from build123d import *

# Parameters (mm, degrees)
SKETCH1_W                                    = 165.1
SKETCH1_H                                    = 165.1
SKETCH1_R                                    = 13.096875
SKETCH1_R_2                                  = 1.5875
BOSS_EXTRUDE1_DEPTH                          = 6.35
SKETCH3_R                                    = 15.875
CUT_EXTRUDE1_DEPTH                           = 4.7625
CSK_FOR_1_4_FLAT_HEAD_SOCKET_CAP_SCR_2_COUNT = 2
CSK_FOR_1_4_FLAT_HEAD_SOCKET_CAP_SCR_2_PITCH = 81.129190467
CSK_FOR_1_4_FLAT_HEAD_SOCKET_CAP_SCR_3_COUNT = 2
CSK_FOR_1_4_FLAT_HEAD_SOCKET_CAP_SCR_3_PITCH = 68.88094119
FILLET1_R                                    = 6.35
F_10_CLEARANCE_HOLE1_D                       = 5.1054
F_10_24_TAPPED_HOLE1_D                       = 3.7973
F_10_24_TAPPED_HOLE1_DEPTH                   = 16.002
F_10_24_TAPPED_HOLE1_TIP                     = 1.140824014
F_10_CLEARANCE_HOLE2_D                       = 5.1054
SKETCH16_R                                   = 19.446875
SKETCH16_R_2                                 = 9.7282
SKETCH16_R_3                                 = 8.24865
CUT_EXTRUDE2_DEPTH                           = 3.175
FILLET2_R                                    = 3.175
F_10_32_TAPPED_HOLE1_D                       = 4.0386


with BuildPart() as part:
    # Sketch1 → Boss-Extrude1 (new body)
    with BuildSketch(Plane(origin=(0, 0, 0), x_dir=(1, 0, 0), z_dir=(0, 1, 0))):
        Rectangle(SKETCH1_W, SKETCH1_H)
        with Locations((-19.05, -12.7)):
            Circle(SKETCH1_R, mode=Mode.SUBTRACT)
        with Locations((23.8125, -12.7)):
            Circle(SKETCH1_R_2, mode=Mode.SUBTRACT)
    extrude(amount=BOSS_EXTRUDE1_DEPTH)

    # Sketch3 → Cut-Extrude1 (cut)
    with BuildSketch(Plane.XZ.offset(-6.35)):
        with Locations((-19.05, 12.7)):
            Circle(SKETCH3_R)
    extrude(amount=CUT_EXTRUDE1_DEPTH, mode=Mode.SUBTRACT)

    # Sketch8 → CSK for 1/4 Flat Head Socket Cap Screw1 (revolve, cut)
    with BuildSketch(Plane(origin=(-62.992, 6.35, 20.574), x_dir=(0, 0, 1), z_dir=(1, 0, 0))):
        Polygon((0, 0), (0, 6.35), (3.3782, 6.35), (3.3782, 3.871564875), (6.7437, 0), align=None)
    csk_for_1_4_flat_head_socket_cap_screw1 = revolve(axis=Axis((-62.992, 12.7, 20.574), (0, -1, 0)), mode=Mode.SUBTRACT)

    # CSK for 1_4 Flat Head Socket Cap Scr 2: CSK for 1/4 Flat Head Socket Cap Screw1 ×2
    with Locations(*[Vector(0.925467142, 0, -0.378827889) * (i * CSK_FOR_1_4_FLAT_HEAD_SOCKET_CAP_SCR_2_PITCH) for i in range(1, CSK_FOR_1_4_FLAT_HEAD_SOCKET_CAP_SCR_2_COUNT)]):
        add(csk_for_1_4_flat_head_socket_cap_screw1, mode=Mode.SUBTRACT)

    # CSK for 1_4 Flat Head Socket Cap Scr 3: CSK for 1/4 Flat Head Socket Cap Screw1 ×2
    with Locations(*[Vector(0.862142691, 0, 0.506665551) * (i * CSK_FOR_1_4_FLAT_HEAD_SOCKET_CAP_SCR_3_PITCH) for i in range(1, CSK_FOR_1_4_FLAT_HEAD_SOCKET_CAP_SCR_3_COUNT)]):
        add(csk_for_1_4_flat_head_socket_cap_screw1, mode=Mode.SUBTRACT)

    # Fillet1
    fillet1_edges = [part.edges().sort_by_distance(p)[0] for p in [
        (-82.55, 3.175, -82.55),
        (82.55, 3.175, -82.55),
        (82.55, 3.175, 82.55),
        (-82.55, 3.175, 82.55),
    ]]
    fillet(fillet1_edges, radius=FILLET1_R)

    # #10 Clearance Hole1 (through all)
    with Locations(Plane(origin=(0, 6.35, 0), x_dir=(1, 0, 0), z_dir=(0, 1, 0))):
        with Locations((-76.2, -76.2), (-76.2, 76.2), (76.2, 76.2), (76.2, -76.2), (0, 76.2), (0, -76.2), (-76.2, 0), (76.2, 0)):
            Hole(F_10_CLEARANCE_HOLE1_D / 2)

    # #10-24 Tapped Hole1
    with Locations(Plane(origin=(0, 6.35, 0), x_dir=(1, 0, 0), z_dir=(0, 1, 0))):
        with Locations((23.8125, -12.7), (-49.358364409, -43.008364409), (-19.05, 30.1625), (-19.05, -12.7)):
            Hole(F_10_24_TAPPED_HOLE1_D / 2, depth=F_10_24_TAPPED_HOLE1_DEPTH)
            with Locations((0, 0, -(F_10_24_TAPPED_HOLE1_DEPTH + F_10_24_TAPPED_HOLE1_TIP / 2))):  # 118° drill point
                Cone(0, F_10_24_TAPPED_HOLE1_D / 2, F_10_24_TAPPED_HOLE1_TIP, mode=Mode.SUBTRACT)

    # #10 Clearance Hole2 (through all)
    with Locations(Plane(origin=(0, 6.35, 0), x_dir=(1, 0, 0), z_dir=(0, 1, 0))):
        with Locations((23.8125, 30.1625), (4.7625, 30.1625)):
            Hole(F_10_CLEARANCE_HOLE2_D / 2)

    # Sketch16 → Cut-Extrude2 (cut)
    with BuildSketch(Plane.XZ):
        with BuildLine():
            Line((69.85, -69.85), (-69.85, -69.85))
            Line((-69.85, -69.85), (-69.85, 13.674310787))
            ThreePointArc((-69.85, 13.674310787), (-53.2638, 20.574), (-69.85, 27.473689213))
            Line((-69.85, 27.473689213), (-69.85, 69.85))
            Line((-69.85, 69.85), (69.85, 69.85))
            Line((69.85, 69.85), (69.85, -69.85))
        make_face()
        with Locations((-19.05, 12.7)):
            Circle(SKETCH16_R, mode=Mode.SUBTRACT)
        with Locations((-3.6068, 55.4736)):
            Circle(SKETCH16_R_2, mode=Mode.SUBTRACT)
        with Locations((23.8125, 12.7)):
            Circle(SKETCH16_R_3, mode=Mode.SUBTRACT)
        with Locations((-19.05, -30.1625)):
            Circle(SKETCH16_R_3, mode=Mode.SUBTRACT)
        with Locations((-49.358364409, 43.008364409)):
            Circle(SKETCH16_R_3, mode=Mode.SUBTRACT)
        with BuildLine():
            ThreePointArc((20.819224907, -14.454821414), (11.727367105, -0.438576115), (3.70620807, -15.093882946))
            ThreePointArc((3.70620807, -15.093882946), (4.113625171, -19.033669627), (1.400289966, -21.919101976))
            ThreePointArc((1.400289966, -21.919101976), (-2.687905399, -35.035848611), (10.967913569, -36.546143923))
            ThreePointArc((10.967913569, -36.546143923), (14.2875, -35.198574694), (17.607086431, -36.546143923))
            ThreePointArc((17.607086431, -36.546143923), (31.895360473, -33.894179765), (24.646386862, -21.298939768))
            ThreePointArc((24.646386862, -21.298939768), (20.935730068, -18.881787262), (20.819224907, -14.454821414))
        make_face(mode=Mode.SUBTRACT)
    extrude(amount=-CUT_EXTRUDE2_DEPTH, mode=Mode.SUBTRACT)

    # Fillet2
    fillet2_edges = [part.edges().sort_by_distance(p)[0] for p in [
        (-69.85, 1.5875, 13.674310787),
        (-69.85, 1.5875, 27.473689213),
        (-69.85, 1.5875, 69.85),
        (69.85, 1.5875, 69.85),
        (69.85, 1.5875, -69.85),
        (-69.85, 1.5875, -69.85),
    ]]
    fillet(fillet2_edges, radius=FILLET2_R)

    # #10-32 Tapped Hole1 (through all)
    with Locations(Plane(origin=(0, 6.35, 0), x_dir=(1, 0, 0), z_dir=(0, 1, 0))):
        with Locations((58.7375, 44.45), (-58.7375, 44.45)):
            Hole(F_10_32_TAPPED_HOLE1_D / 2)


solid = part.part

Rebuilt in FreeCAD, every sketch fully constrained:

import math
import FreeCAD as App
import Part
import Sketcher
from FreeCAD import Vector
Q = App.Units.Quantity


def edges_at(feature, points):
    """Names of the edges that pass closest to the given points."""
    edges = feature.Shape.Edges
    near = lambda p: min(range(len(edges)), key=lambda i: edges[i].distToShape(Part.Vertex(*p))[0])
    return sorted({f"Edge{near(p) + 1}" for p in points})

doc = App.newDocument("Part")
params = doc.addObject("Spreadsheet::Sheet", "Params")
for row, (alias, value) in enumerate([
    ("sketch1_diameter", "1.03125 in"),
    ("sketch1_diameter2", "0.125 in"),
    ("sketch1_width", "6.5 in"),
    ("pad1_length", "0.25 in"),
    ("sketch2_diameter", "1.25 in"),
    ("pocket1_length", "0.1875 in"),
    ("sketch3_width", "0.25 in"),
    ("sketch3_height", "0.133 in"),
    ("groove_angle", "360 deg"),
    ("linearpattern_pitch", "81.12919 mm"),
    ("linearpattern2_pitch", "68.880941 mm"),
    ("fillet_radius", "0.25 in"),
    ("sketch4_diameter", "0.201 in"),
    ("hole_diameter", "0.201 in"),
    ("hole2_diameter", "0.1495 in"),
    ("hole2_depth", "0.63 in"),
    ("sketch6_diameter", "0.201 in"),
    ("hole3_diameter", "0.201 in"),
    ("sketch7_diameter", "1.53125 in"),
    ("sketch7_diameter2", "0.766 in"),
    ("sketch7_width", "5.5 in"),
    ("sketch7_radius", "0.1875 in"),
    ("pocket2_length", "0.125 in"),
    ("fillet2_radius", "0.125 in"),
    ("sketch8_diameter", "0.159 in"),
    ("hole4_diameter", "0.159 in"),
], start=1):
    params.set(f"A{row}", alias)
    params.set(f"B{row}", "=" + value)
    params.setAlias(f"B{row}", alias)

body = doc.addObject("PartDesign::Body", "Body")

sketch1 = body.newObject("Sketcher::SketchObject", "Sketch")
sketch1.AttachmentSupport = (doc.getObject("XZ_Plane"), [""])
sketch1.MapMode = "FlatFace"
sketch1.addGeometry([
    Part.LineSegment(Vector(-82.5, -82.5, 0), Vector(-82.5, 82.5, 0)),
    Part.LineSegment(Vector(-82.5, 82.5, 0), Vector(82.5, 82.5, 0)),
    Part.LineSegment(Vector(82.5, 82.5, 0), Vector(82.5, -82.5, 0)),
    Part.LineSegment(Vector(82.5, -82.5, 0), Vector(-82.5, -82.5, 0)),
    Part.Circle(Vector(-19.1, 12.7, 0), Vector(0, 0, 1), 13.1),
    Part.Circle(Vector(23.8, 12.7, 0), Vector(0, 0, 1), 1.6),
], False)
sketch1.addConstraint([
    Sketcher.Constraint("Coincident", 0, 2, 1, 1),
    Sketcher.Constraint("Coincident", 1, 2, 2, 1),
    Sketcher.Constraint("Coincident", 2, 2, 3, 1),
    Sketcher.Constraint("Coincident", 3, 2, 0, 1),
    Sketcher.Constraint("Vertical", 0),
    Sketcher.Constraint("Horizontal", 1),
    Sketcher.Constraint("Vertical", 2),
    Sketcher.Constraint("Horizontal", 3),
    Sketcher.Constraint("Symmetric", 0, 2, 2, 2, -1, 1),
    Sketcher.Constraint("Horizontal", 4, 3, 5, 3),
    Sketcher.Constraint("Equal", 3, 0),
    Sketcher.Constraint("Diameter", 4, Q("1.03125 in")),
    Sketcher.Constraint("Diameter", 5, Q("0.125 in")),
    Sketcher.Constraint("DistanceX", 1, 1, 1, 2, Q("6.5 in")),
    Sketcher.Constraint("DistanceX", 4, 3, 1, 2, Q("4 in")),
    Sketcher.Constraint("DistanceY", -1, 1, 4, 3, Q("0.5 in")),
    Sketcher.Constraint("DistanceX", -1, 1, 5, 3, Q("0.9375 in")),
])
sketch1.setExpression("Constraints[11]", "Params.sketch1_diameter")
sketch1.setExpression("Constraints[12]", "Params.sketch1_diameter2")
sketch1.setExpression("Constraints[13]", "Params.sketch1_width")
pad1 = body.newObject("PartDesign::Pad", "Pad")
pad1.Profile = sketch1
pad1.setExpression("Length", "Params.pad1_length")
pad1.Reversed = True

sketch2 = body.newObject("Sketcher::SketchObject", "Sketch001")
sketch2.AttachmentSupport = (doc.getObject("XZ_Plane"), [""])
sketch2.MapMode = "FlatFace"
sketch2.AttachmentOffset = App.Placement(Vector(0, 0, -0.25 * 25.4), App.Rotation())
sketch2.addGeometry(Part.Circle(Vector(-19, 13, 0), Vector(0, 0, 1), 16), False)
sketch2.addConstraint([
    Sketcher.Constraint("Diameter", 0, Q("1.25 in")),
    Sketcher.Constraint("DistanceY", -1, 1, 0, 3, Q("0.5 in")),
    Sketcher.Constraint("DistanceX", 0, 3, -1, 1, Q("0.75 in")),
])
sketch2.setExpression("Constraints[0]", "Params.sketch2_diameter")
pocket1 = body.newObject("PartDesign::Pocket", "Pocket")
pocket1.Profile = sketch2
pocket1.setExpression("Length", "Params.pocket1_length")
pocket1.Reversed = True

sketch3 = body.newObject("Sketcher::SketchObject", "Sketch002")
sketch3.AttachmentSupport = (doc.getObject("YZ_Plane"), [""])
sketch3.MapMode = "FlatFace"
sketch3.AttachmentOffset = App.Placement(Vector(0, 0, -2.48 * 25.4), App.Rotation())
sketch3.addGeometry([
    Part.LineSegment(Vector(0, 20.6, 0), Vector(6.3, 20.6, 0)),
    Part.LineSegment(Vector(6.3, 20.6, 0), Vector(6.3, 27.3, 0)),
    Part.LineSegment(Vector(6.3, 27.3, 0), Vector(2.5, 24, 0)),
    Part.LineSegment(Vector(2.5, 24, 0), Vector(0, 24, 0)),
    Part.LineSegment(Vector(0, 24, 0), Vector(0, 20.6, 0)),
], False)
sketch3.addGeometry(Part.LineSegment(Vector(6.3, 20.6, 0), Vector(0, 20.6, 0)), True)
sketch3.addConstraint([
    Sketcher.Constraint("Coincident", 0, 2, 1, 1),
    Sketcher.Constraint("Coincident", 1, 2, 2, 1),
    Sketcher.Constraint("Coincident", 2, 2, 3, 1),
    Sketcher.Constraint("Coincident", 3, 2, 4, 1),
    Sketcher.Constraint("Coincident", 4, 2, 0, 1),
    Sketcher.Constraint("Horizontal", 0),
    Sketcher.Constraint("Vertical", 1),
    Sketcher.Constraint("Horizontal", 3),
    Sketcher.Constraint("Vertical", 4),
    Sketcher.Constraint("Horizontal", 5),
    Sketcher.Constraint("Coincident", 5, 1, 0, 2),
    Sketcher.Constraint("PointOnObject", 3, 2, -2),
    Sketcher.Constraint("PointOnObject", 5, 2, -2),
    Sketcher.Constraint("Angle", 2, Q("-139 deg")),
    Sketcher.Constraint("DistanceX", 0, 1, 0, 2, Q("0.25 in")),
    Sketcher.Constraint("DistanceY", 4, 2, 4, 1, Q("0.133 in")),
    Sketcher.Constraint("DistanceY", -1, 1, 0, 2, Q("0.81 in")),
    Sketcher.Constraint("DistanceY", 1, 1, 1, 2, Q("0.2655 in")),
])
sketch3.setExpression("Constraints[14]", "Params.sketch3_width")
sketch3.setExpression("Constraints[15]", "Params.sketch3_height")
groove = body.newObject("PartDesign::Groove", "Groove")
groove.Profile = sketch3
groove.ReferenceAxis = (sketch3, ["Axis0"])
groove.setExpression("Angle", "Params.groove_angle")
doc.recompute()

datumline = body.newObject("PartDesign::Line", "DatumLine")
datumline.Placement = App.Placement(Vector(0, 0, 0), App.Rotation(Vector(0, 0, 1), Vector(0.925467142, 0, -0.378827889)))
linearpattern = body.newObject("PartDesign::LinearPattern", "LinearPattern")
linearpattern.Originals = [groove]
linearpattern.Direction = (datumline, [""])
linearpattern.Mode = "offset"
linearpattern.setExpression("Offset", "Params.linearpattern_pitch")
linearpattern.Occurrences = 2
body.Tip = linearpattern
doc.recompute()

datumline2 = body.newObject("PartDesign::Line", "DatumLine001")
datumline2.Placement = App.Placement(Vector(0, 0, 0), App.Rotation(Vector(0, 0, 1), Vector(0.862142691, 0, 0.506665551)))
linearpattern2 = body.newObject("PartDesign::LinearPattern", "LinearPattern001")
linearpattern2.Originals = [groove]
linearpattern2.Direction = (datumline2, [""])
linearpattern2.Mode = "offset"
linearpattern2.setExpression("Offset", "Params.linearpattern2_pitch")
linearpattern2.Occurrences = 2
body.Tip = linearpattern2
doc.recompute()

fillet = body.newObject("PartDesign::Fillet", "Fillet")
fillet.Base = (linearpattern2, edges_at(linearpattern2, [
    (-82.55, 3.175, -82.55),
    (82.55, 3.175, -82.55),
    (82.55, 3.175, 82.55),
    (-82.55, 3.175, 82.55),
]))
fillet.setExpression("Radius", "Params.fillet_radius")

sketch4 = body.newObject("Sketcher::SketchObject", "Sketch003")
sketch4.AttachmentSupport = (doc.getObject("XZ_Plane"), [""])
sketch4.MapMode = "FlatFace"
sketch4.AttachmentOffset = App.Placement(Vector(0, 0, -0.25 * 25.4), App.Rotation())
sketch4.addGeometry([
    Part.Circle(Vector(-76.2, 76.2, 0), Vector(0, 0, 1), 2.6),
    Part.Circle(Vector(-76.2, -76.2, 0), Vector(0, 0, 1), 2.6),
    Part.Circle(Vector(76.2, -76.2, 0), Vector(0, 0, 1), 2.6),
    Part.Circle(Vector(76.2, 76.2, 0), Vector(0, 0, 1), 2.6),
    Part.Circle(Vector(0, -76.2, 0), Vector(0, 0, 1), 2.6),
    Part.Circle(Vector(0, 76.2, 0), Vector(0, 0, 1), 2.6),
    Part.Circle(Vector(-76.2, 0, 0), Vector(0, 0, 1), 2.6),
    Part.Circle(Vector(76.2, 0, 0), Vector(0, 0, 1), 2.6),
], False)
sketch4.addConstraint([
    Sketcher.Constraint("Equal", 0, 1),
    Sketcher.Constraint("Equal", 1, 2),
    Sketcher.Constraint("Equal", 2, 3),
    Sketcher.Constraint("Equal", 3, 4),
    Sketcher.Constraint("Equal", 4, 5),
    Sketcher.Constraint("Equal", 5, 6),
    Sketcher.Constraint("Equal", 6, 7),
    Sketcher.Constraint("Symmetric", 0, 3, 2, 3, -1, 1),
    Sketcher.Constraint("Symmetric", 1, 3, 3, 3, -1, 1),
    Sketcher.Constraint("Symmetric", 4, 3, 5, 3, -1, 1),
    Sketcher.Constraint("Symmetric", 6, 3, 7, 3, -1, 1),
    Sketcher.Constraint("Symmetric", 1, 3, 2, 3, -2),
    Sketcher.Constraint("PointOnObject", 4, 3, -2),
    Sketcher.Constraint("PointOnObject", 6, 3, -1),
    Sketcher.Constraint("Horizontal", 2, 3, 4, 3),
    Sketcher.Constraint("Vertical", 1, 3, 6, 3),
    Sketcher.Constraint("Diameter", 0, Q("0.201 in")),
    Sketcher.Constraint("DistanceX", 0, 3, -1, 1, Q("3 in")),
    Sketcher.Constraint("DistanceY", -1, 1, 0, 3, Q("3 in")),
])
sketch4.setExpression("Constraints[16]", "Params.sketch4_diameter")
doc.recompute()
hole = body.newObject("PartDesign::Hole", "Hole")
hole.Profile = sketch4
hole.ThreadType = "None"
hole.setExpression("Diameter", "Params.hole_diameter")
hole.DepthType = "ThroughAll"
hole.Reversed = True

sketch5 = body.newObject("Sketcher::SketchObject", "Sketch004")
sketch5.AttachmentSupport = (doc.getObject("XZ_Plane"), [""])
sketch5.MapMode = "FlatFace"
sketch5.AttachmentOffset = App.Placement(Vector(0, 0, -0.25 * 25.4), App.Rotation())
sketch5.addGeometry([
    Part.Circle(Vector(23.8, 12.7, 0), Vector(0, 0, 1), 1.9),
    Part.Circle(Vector(-49.4, 43, 0), Vector(0, 0, 1), 1.9),
    Part.Circle(Vector(-19.1, -30.2, 0), Vector(0, 0, 1), 1.9),
    Part.Circle(Vector(-19.1, 12.7, 0), Vector(0, 0, 1), 1.9),
], False)
sketch5.addConstraint([
    Sketcher.Constraint("Equal", 0, 1),
    Sketcher.Constraint("Equal", 1, 2),
    Sketcher.Constraint("Equal", 2, 3),
    Sketcher.Constraint("Horizontal", 0, 3, 3, 3),
    Sketcher.Constraint("Vertical", 2, 3, 3, 3),
    Sketcher.Constraint("Diameter", 0, Q("0.1495 in")),
    Sketcher.Constraint("DistanceY", -1, 1, 0, 3, Q("0.5 in")),
    Sketcher.Constraint("DistanceX", 2, 3, -1, 1, Q("0.75 in")),
    Sketcher.Constraint("DistanceX", -1, 1, 0, 3, Q("0.9375 in")),
    Sketcher.Constraint("DistanceY", 2, 3, -1, 1, Q("1.1875 in")),
    Sketcher.Constraint("DistanceX", 1, 3, -1, 1, Q("49.358364 mm")),
    Sketcher.Constraint("DistanceY", -1, 1, 1, 3, Q("43.008364 mm")),
])
doc.recompute()
hole2 = body.newObject("PartDesign::Hole", "Hole001")
hole2.Profile = sketch5
hole2.ThreadType = "None"
hole2.setExpression("Diameter", "Params.hole2_diameter")
hole2.DepthType = "Dimension"
hole2.setExpression("Depth", "Params.hole2_depth")
hole2.DrillPoint = "Angled"
hole2.DrillPointAngle = 118
hole2.Reversed = True

sketch6 = body.newObject("Sketcher::SketchObject", "Sketch005")
sketch6.AttachmentSupport = (doc.getObject("XZ_Plane"), [""])
sketch6.MapMode = "FlatFace"
sketch6.AttachmentOffset = App.Placement(Vector(0, 0, -0.25 * 25.4), App.Rotation())
sketch6.addGeometry([
    Part.Circle(Vector(23.8, -30.2, 0), Vector(0, 0, 1), 2.6),
    Part.Circle(Vector(4.8, -30.2, 0), Vector(0, 0, 1), 2.6),
], False)
sketch6.addConstraint([
    Sketcher.Constraint("Equal", 0, 1),
    Sketcher.Constraint("Horizontal", 0, 3, 1, 3),
    Sketcher.Constraint("Diameter", 0, Q("0.201 in")),
    Sketcher.Constraint("DistanceX", 1, 3, 0, 3, Q("0.75 in")),
    Sketcher.Constraint("DistanceX", -1, 1, 0, 3, Q("0.9375 in")),
    Sketcher.Constraint("DistanceY", 0, 3, -1, 1, Q("1.1875 in")),
])
sketch6.setExpression("Constraints[2]", "Params.sketch6_diameter")
doc.recompute()
hole3 = body.newObject("PartDesign::Hole", "Hole002")
hole3.Profile = sketch6
hole3.ThreadType = "None"
hole3.setExpression("Diameter", "Params.hole3_diameter")
hole3.DepthType = "ThroughAll"
hole3.Reversed = True

sketch7 = body.newObject("Sketcher::SketchObject", "Sketch006")
sketch7.AttachmentSupport = (doc.getObject("XZ_Plane"), [""])
sketch7.MapMode = "FlatFace"
sketch7.addGeometry([
    Part.LineSegment(Vector(-69.8, -69.8, 0), Vector(69.8, -69.8, 0)),
    Part.LineSegment(Vector(69.8, -69.8, 0), Vector(69.8, 69.8, 0)),
    Part.LineSegment(Vector(69.8, 69.8, 0), Vector(-69.8, 69.8, 0)),
    Part.LineSegment(Vector(-69.8, 69.8, 0), Vector(-69.8, 27.5, 0)),
    Part.ArcOfCircle(Part.Circle(Vector(-63, 20.6, 0), Vector(0, 0, 1), 9.7), math.radians(-135), math.radians(135)),
    Part.LineSegment(Vector(-69.8, 13.7, 0), Vector(-69.8, -69.8, 0)),
    Part.ArcOfCircle(Part.Circle(Vector(25.1, -16.6, 0), Vector(0, 0, 1), 4.8), math.radians(154), math.radians(265)),
    Part.ArcOfCircle(Part.Circle(Vector(23.8, -30.2, 0), Vector(0, 0, 1), 8.9), math.radians(-134), math.radians(85)),
    Part.ArcOfCircle(Part.Circle(Vector(14.3, -40, 0), Vector(0, 0, 1), 4.8), math.radians(46), math.radians(134)),
    Part.ArcOfCircle(Part.Circle(Vector(4.8, -30.2, 0), Vector(0, 0, 1), 8.9), math.radians(112), math.radians(314)),
    Part.ArcOfCircle(Part.Circle(Vector(-0.4, -17.5, 0), Vector(0, 0, 1), 4.8), math.radians(-68), math.radians(30)),
    Part.ArcOfCircle(Part.Circle(Vector(12.1, -10.2, 0), Vector(0, 0, 1), 9.7), math.radians(-26), math.radians(210)),
    Part.Circle(Vector(23.8, 12.7, 0), Vector(0, 0, 1), 8.2),
    Part.Circle(Vector(-19.1, -30.2, 0), Vector(0, 0, 1), 8.2),
    Part.Circle(Vector(-19.1, 12.7, 0), Vector(0, 0, 1), 19.4),
    Part.Circle(Vector(-3.6, 55.5, 0), Vector(0, 0, 1), 9.7),
    Part.Circle(Vector(-49.4, 43, 0), Vector(0, 0, 1), 8.2),
], False)
sketch7.addConstraint([
    Sketcher.Constraint("Coincident", 0, 2, 1, 1),
    Sketcher.Constraint("Coincident", 1, 2, 2, 1),
    Sketcher.Constraint("Coincident", 2, 2, 3, 1),
    Sketcher.Constraint("Coincident", 3, 2, 4, 2),
    Sketcher.Constraint("Coincident", 4, 1, 5, 1),
    Sketcher.Constraint("Coincident", 5, 2, 0, 1),
    Sketcher.Constraint("Tangent", 6, 2, 7, 2),
    Sketcher.Constraint("Tangent", 7, 1, 8, 1),
    Sketcher.Constraint("Tangent", 8, 2, 9, 2),
    Sketcher.Constraint("Tangent", 9, 1, 10, 1),
    Sketcher.Constraint("Tangent", 10, 2, 11, 2),
    Sketcher.Constraint("Tangent", 11, 1, 6, 1),
    Sketcher.Constraint("Horizontal", 0),
    Sketcher.Constraint("Vertical", 1),
    Sketcher.Constraint("Horizontal", 2),
    Sketcher.Constraint("Vertical", 3),
    Sketcher.Constraint("Vertical", 5),
    Sketcher.Constraint("Equal", 6, 8),
    Sketcher.Constraint("Equal", 7, 9),
    Sketcher.Constraint("Equal", 8, 10),
    Sketcher.Constraint("Equal", 4, 11),
    Sketcher.Constraint("Equal", 12, 13),
    Sketcher.Constraint("Equal", 11, 15),
    Sketcher.Constraint("Equal", 13, 16),
    Sketcher.Constraint("Symmetric", 0, 2, 2, 2, -1, 1),
    Sketcher.Constraint("Horizontal", 7, 3, 9, 3),
    Sketcher.Constraint("Horizontal", 9, 3, 13, 3),
    Sketcher.Constraint("Horizontal", 12, 3, 14, 3),
    Sketcher.Constraint("Vertical", 7, 3, 12, 3),
    Sketcher.Constraint("Vertical", 13, 3, 14, 3),
    Sketcher.Constraint("Vertical", 3, 2, 4, 1),
    Sketcher.Constraint("Equal", 2, 1),
    Sketcher.Constraint("Diameter", 14, Q("1.53125 in")),
    Sketcher.Constraint("Diameter", 15, Q("0.766 in")),
    Sketcher.Constraint("DistanceX", 0, 1, 0, 2, Q("5.5 in")),
    Sketcher.Constraint("Radius", 6, Q("0.1875 in")),
    Sketcher.Constraint("DistanceX", 2, 2, 14, 3, Q("2 in")),
    Sketcher.Constraint("Diameter", 12, Q("0.6495 in")),
    Sketcher.Constraint("DistanceY", 11, 3, -1, 1, Q("0.4 in")),
    Sketcher.Constraint("DistanceY", -1, 1, 12, 3, Q("0.5 in")),
    Sketcher.Constraint("Radius", 7, Q("0.3505 in")),
    Sketcher.Constraint("DistanceX", 4, 3, -1, 1, Q("2.48 in")),
    Sketcher.Constraint("DistanceY", -1, 1, 4, 3, Q("0.81 in")),
    Sketcher.Constraint("DistanceX", 9, 3, 7, 3, Q("0.75 in")),
    Sketcher.Constraint("DistanceX", -1, 1, 7, 3, Q("0.9375 in")),
    Sketcher.Constraint("DistanceY", 7, 3, -1, 1, Q("1.1875 in")),
    Sketcher.Constraint("DistanceX", -1, 1, 11, 3, Q("0.476 in")),
    Sketcher.Constraint("DistanceX", 15, 3, -1, 1, Q("0.142 in")),
    Sketcher.Constraint("DistanceY", -1, 1, 15, 3, Q("2.184 in")),
    Sketcher.Constraint("DistanceX", 16, 3, 10, 3, Q("48.96004 mm")),
    Sketcher.Constraint("DistanceY", 10, 3, 16, 3, Q("60.51766 mm")),
])
sketch7.setExpression("Constraints[32]", "Params.sketch7_diameter")
sketch7.setExpression("Constraints[33]", "Params.sketch7_diameter2")
sketch7.setExpression("Constraints[34]", "Params.sketch7_width")
sketch7.setExpression("Constraints[35]", "Params.sketch7_radius")
pocket2 = body.newObject("PartDesign::Pocket", "Pocket001")
pocket2.Profile = sketch7
pocket2.setExpression("Length", "Params.pocket2_length")
doc.recompute()

fillet2 = body.newObject("PartDesign::Fillet", "Fillet001")
fillet2.Base = (pocket2, edges_at(pocket2, [
    (-69.85, 1.587, 13.674),
    (-69.85, 1.587, 27.474),
    (-69.85, 1.587, 69.85),
    (69.85, 1.587, 69.85),
    (69.85, 1.587, -69.85),
    (-69.85, 1.587, -69.85),
]))
fillet2.setExpression("Radius", "Params.fillet2_radius")

sketch8 = body.newObject("Sketcher::SketchObject", "Sketch007")
sketch8.AttachmentSupport = (doc.getObject("XZ_Plane"), [""])
sketch8.MapMode = "FlatFace"
sketch8.AttachmentOffset = App.Placement(Vector(0, 0, -0.25 * 25.4), App.Rotation())
sketch8.addGeometry([
    Part.Circle(Vector(58.7, -44.5, 0), Vector(0, 0, 1), 2),
    Part.Circle(Vector(-58.7, -44.5, 0), Vector(0, 0, 1), 2),
], False)
sketch8.addConstraint([
    Sketcher.Constraint("Equal", 0, 1),
    Sketcher.Constraint("Symmetric", 0, 3, 1, 3, -2),
    Sketcher.Constraint("Diameter", 0, Q("0.159 in")),
    Sketcher.Constraint("DistanceY", 0, 3, -1, 1, Q("1.75 in")),
    Sketcher.Constraint("DistanceX", -1, 1, 0, 3, Q("2.3125 in")),
])
sketch8.setExpression("Constraints[2]", "Params.sketch8_diameter")
doc.recompute()
hole4 = body.newObject("PartDesign::Hole", "Hole003")
hole4.Profile = sketch8
hole4.ThreadType = "None"
hole4.setExpression("Diameter", "Params.hole4_diameter")
hole4.DepthType = "ThroughAll"
hole4.Reversed = True

doc.recompute()
